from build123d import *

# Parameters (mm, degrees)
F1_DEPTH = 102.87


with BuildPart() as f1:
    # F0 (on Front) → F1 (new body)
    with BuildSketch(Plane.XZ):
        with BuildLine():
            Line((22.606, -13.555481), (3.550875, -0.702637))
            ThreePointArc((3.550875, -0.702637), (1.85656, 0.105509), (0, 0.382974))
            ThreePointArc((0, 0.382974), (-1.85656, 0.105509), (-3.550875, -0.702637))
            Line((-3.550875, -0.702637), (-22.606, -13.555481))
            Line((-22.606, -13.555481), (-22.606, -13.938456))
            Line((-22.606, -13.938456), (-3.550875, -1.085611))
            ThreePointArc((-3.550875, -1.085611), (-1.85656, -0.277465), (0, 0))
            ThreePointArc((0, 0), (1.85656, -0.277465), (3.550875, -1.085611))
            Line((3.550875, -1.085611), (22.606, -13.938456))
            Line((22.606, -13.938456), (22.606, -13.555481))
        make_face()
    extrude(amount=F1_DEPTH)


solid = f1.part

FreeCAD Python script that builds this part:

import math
import FreeCAD as App
import Part
import Sketcher

V = App.Vector
Q = App.Units.Quantity

doc = App.newDocument("Part")
params = doc.addObject("Spreadsheet::Sheet", "Params")
for row, (alias, value) in enumerate([
    ("pad1_length", "4.05 in"),
], start=1):
    params.set(f"A{row}", alias)
    params.set(f"B{row}", "=" + value)
    params.setAlias(f"B{row}", alias)

body = doc.addObject("PartDesign::Body", "Body")

sketch1 = body.newObject("Sketcher::SketchObject", "Sketch")
sketch1.AttachmentSupport = (doc.getObject("XZ_Plane"), [""])
sketch1.MapMode = "FlatFace"
sketch1.addGeometry(Part.LineSegment(V(22.61, -13.56, 0), V(3.55, -0.7, 0)), False)
sketch1.addGeometry(Part.ArcOfCircle(Part.Circle(V(0, -5.97, 0), V(0, 0, 1), 6.35), math.radians(56), math.radians(90)), False)
sketch1.addGeometry(Part.ArcOfCircle(Part.Circle(V(0, -5.97, 0), V(0, 0, 1), 6.35), math.radians(90), math.radians(124)), False)
sketch1.addGeometry(Part.LineSegment(V(-3.55, -0.7, 0), V(-22.61, -13.56, 0)), False)
sketch1.addGeometry(Part.LineSegment(V(-22.61, -13.56, 0), V(-22.61, -13.94, 0)), False)
sketch1.addGeometry(Part.LineSegment(V(-22.61, -13.94, 0), V(-3.55, -1.09, 0)), False)
sketch1.addGeometry(Part.ArcOfCircle(Part.Circle(V(0, -6.35, 0), V(0, 0, 1), 6.35), math.radians(90), math.radians(124)), False)
sketch1.addGeometry(Part.ArcOfCircle(Part.Circle(V(0, -6.35, 0), V(0, 0, 1), 6.35), math.radians(56), math.radians(90)), False)
sketch1.addGeometry(Part.LineSegment(V(3.55, -1.09, 0), V(22.61, -13.94, 0)), False)
sketch1.addGeometry(Part.LineSegment(V(22.61, -13.94, 0), V(22.61, -13.56, 0)), False)
sketch1.addConstraint(Sketcher.Constraint("Tangent", 0, 2, 1, 1))
sketch1.addConstraint(Sketcher.Constraint("Tangent", 1, 2, 2, 1))
sketch1.addConstraint(Sketcher.Constraint("Tangent", 2, 2, 3, 1))
sketch1.addConstraint(Sketcher.Constraint("Coincident", 3, 2, 4, 1))
sketch1.addConstraint(Sketcher.Constraint("Coincident", 4, 2, 5, 1))
sketch1.addConstraint(Sketcher.Constraint("Tangent", 5, 2, 6, 2))
sketch1.addConstraint(Sketcher.Constraint("Tangent", 6, 1, 7, 2))
sketch1.addConstraint(Sketcher.Constraint("Tangent", 7, 1, 8, 1))
sketch1.addConstraint(Sketcher.Constraint("Coincident", 8, 2, 9, 1))
sketch1.addConstraint(Sketcher.Constraint("Coincident", 9, 2, 0, 1))
sketch1.addConstraint(Sketcher.Constraint("Vertical", 4))
sketch1.addConstraint(Sketcher.Constraint("Vertical", 9))
sketch1.addConstraint(Sketcher.Constraint("Coincident", 6, 1, -1, 1))
sketch1.addConstraint(Sketcher.Constraint("Equal", 1, 2))
sketch1.addConstraint(Sketcher.Constraint("Equal", 2, 6))
sketch1.addConstraint(Sketcher.Constraint("Equal", 6, 7))
sketch1.addConstraint(Sketcher.Constraint("Symmetric", 0, 2, 2, 2, -2))
sketch1.addConstraint(Sketcher.Constraint("Symmetric", 5, 2, 7, 1, -2))
sketch1.addConstraint(Sketcher.Constraint("PointOnObject", 1, 2, -2))
sketch1.addConstraint(Sketcher.Constraint("Parallel", 3, 5))
sketch1.addConstraint(Sketcher.Constraint("Horizontal", 4, 2, 8, 2))
sketch1.addConstraint(Sketcher.Constraint("Angle", 0, Q("146 deg")))
sketch1.addConstraint(Sketcher.Constraint("DistanceX", 3, 2, -1, 1, Q("0.89 in")))
sketch1.addConstraint(Sketcher.Constraint("Radius", 1, Q("6.350011 mm")))
sketch1.addConstraint(Sketcher.Constraint("DistanceY", 4, 2, 4, 1, Q("0.382975 mm")))
pad1 = body.newObject("PartDesign::Pad", "Pad")
pad1.Profile = sketch1
pad1.setExpression("Length", "Params.pad1_length")

doc.recompute()
